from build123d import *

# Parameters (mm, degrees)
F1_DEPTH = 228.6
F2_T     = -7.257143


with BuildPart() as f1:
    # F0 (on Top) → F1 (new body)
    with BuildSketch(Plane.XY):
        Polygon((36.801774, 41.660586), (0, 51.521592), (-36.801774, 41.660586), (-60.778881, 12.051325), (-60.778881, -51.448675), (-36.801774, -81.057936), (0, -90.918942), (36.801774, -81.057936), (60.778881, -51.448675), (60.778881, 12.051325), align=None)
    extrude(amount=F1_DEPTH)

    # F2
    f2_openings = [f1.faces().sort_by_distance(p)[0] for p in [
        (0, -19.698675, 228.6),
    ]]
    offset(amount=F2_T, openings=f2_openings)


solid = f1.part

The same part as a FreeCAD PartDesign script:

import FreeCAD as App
import Part
import Sketcher

V = App.Vector
Q = App.Units.Quantity


def faces_at(feature, points):
    """Names of the faces that lie closest to the given points."""
    faces = feature.Shape.Faces
    near = lambda p: min(range(len(faces)), key=lambda i: faces[i].distToShape(Part.Vertex(*p))[0])
    return sorted({f"Face{near(p) + 1}" for p in points})


def add_polygon(sketch, points):
    """Adds a closed chain of lines whose ends are joined by coincident constraints."""
    first, n = sketch.GeometryCount, len(points)
    for a, b in zip(points, points[1:] + points[:1]):
        sketch.addGeometry(Part.LineSegment(App.Vector(*a, 0), App.Vector(*b, 0)), False)
    for i in range(n):
        sketch.addConstraint(Sketcher.Constraint("Coincident", first + i, 2, first + (i + 1) % n, 1))

doc = App.newDocument("Part")
params = doc.addObject("Spreadsheet::Sheet", "Params")
for row, (alias, value) in enumerate([
    ("sketch1_height", "2.5 in"),
    ("sketch1_length", "1.5 in"),
    ("pad1_length", "9 in"),
    ("thickness_wall", "7.257143 mm"),
], start=1):
    params.set(f"A{row}", alias)
    params.set(f"B{row}", "=" + value)
    params.setAlias(f"B{row}", alias)

body = doc.addObject("PartDesign::Body", "Body")

sketch1 = doc.addObject("Sketcher::SketchObject", "Sketch")
body.addObject(sketch1)
sketch1.AttachmentSupport = (doc.XY_Plane, [""])
sketch1.MapMode = "FlatFace"
add_polygon(sketch1, [(36.801774, 41.660586), (0, 51.521592), (-36.801774, 41.660586), (-60.778881, 12.051325), (-60.778881, -51.448675), (-36.801774, -81.057936), (0, -90.918942), (36.801774, -81.057936), (60.778881, -51.448675), (60.778881, 12.051325)])
sketch1.addConstraint([
    Sketcher.Constraint("Vertical", 3),
    Sketcher.Constraint("Vertical", 8),
    Sketcher.Constraint("Symmetric", 4, 2, 6, 2, -2),
    Sketcher.Constraint("Symmetric", 3, 2, 7, 2, -2),
    Sketcher.Constraint("Symmetric", 1, 2, 9, 2, -2),
    Sketcher.Constraint("PointOnObject", 0, 2, -2),
    Sketcher.Constraint("PointOnObject", 5, 2, -2),
    Sketcher.Constraint("Parallel", 0, 5),
    Sketcher.Constraint("Parallel", 2, 7),
    Sketcher.Constraint("Parallel", 4, 9),
    Sketcher.Constraint("Vertical", 1, 2, 4, 2),
    Sketcher.Constraint("Equal", 1, 2),
    Sketcher.Constraint("DistanceY", 3, 2, 3, 1, Q("2.5 in")),
    Sketcher.Constraint("Angle", 0, Q("164.999999 deg")),
    Sketcher.Constraint("Angle", 2, Q("-129 deg")),
    Sketcher.Constraint("Distance", 0, Q("1.5 in")),
    Sketcher.Constraint("DistanceY", -1, 1, 0, 2, 51.521592),
])
sketch1.setExpression("Constraints[22]", "Params.sketch1_height")
sketch1.setExpression("Constraints[25]", "Params.sketch1_length")
pad1 = doc.addObject("PartDesign::Pad", "Pad")
body.addObject(pad1)
pad1.Profile = sketch1
pad1.setExpression("Length", "Params.pad1_length")
doc.recompute()

thickness = doc.addObject("PartDesign::Thickness", "Thickness")
body.addObject(thickness)
thickness.Base = (pad1, faces_at(pad1, [(0, -19.699, 228.6)]))
thickness.setExpression("Value", "Params.thickness_wall")
thickness.Reversed = True
thickness.Join = "Arc"

doc.recompute()
